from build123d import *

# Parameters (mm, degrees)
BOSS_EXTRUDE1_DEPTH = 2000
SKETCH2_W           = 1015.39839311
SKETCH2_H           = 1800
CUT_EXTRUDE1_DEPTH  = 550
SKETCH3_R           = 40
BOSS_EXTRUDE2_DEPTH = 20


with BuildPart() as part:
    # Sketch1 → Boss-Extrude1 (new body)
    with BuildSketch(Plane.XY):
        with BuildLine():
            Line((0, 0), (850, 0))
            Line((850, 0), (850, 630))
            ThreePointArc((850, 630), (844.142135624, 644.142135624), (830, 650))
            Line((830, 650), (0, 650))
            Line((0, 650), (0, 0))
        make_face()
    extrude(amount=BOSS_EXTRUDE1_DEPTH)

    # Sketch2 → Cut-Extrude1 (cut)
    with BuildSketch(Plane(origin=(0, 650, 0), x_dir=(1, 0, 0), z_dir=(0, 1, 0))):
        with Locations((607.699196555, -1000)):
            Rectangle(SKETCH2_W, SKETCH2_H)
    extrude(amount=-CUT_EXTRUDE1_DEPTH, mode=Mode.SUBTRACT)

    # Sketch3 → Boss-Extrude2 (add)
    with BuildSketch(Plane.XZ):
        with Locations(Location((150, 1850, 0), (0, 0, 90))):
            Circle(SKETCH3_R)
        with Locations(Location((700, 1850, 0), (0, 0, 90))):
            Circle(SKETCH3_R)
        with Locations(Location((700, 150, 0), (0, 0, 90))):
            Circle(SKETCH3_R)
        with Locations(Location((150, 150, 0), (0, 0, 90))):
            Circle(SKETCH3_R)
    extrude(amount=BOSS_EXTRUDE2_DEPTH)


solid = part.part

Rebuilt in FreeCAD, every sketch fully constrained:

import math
import FreeCAD as App
import Part
import Sketcher
Q = App.Units.Quantity


def add_polygon(sketch, points):
    """Adds a closed chain of lines whose ends are joined by coincident constraints."""
    first, n = sketch.GeometryCount, len(points)
    for a, b in zip(points, points[1:] + points[:1]):
        sketch.addGeometry(Part.LineSegment(App.Vector(*a, 0), App.Vector(*b, 0)), False)
    for i in range(n):
        sketch.addConstraint(Sketcher.Constraint("Coincident", first + i, 2, first + (i + 1) % n, 1))

doc = App.newDocument("Part")
params = doc.addObject("Spreadsheet::Sheet", "Params")
for row, (alias, value) in enumerate([
    ("sketch1_radius", "20 mm"),
    ("sketch1_width", "850 mm"),
    ("sketch1_height", "630 mm"),
    ("pad1_length", "2000 mm"),
    ("sketch2_height", "1800 mm"),
    ("pocket1_length", "550 mm"),
    ("sketch3_diameter", "80 mm"),
    ("pad2_length", "20 mm"),
], start=1):
    params.set(f"A{row}", alias)
    params.set(f"B{row}", "=" + value)
    params.setAlias(f"B{row}", alias)

body = doc.addObject("PartDesign::Body", "Body")

# Sketch on XY plane
sketch1 = doc.addObject("Sketcher::SketchObject", "Sketch")
body.addObject(sketch1)
sketch1.AttachmentSupport = (doc.XY_Plane, [""])
sketch1.MapMode = "FlatFace"
sketch1.addGeometry(Part.LineSegment(App.Vector(0, 0, 0), App.Vector(850, 0, 0)), False)
sketch1.addGeometry(Part.LineSegment(App.Vector(850, 0, 0), App.Vector(850, 630, 0)), False)
sketch1.addGeometry(Part.ArcOfCircle(Part.Circle(App.Vector(830, 630, 0), App.Vector(0, 0, 1), 20), math.radians(0), math.radians(90)), False)
sketch1.addGeometry(Part.LineSegment(App.Vector(830, 650, 0), App.Vector(0, 650, 0)), False)
sketch1.addGeometry(Part.LineSegment(App.Vector(0, 650, 0), App.Vector(0, 0, 0)), False)
sketch1.addConstraint(Sketcher.Constraint("Coincident", 0, 2, 1, 1))
sketch1.addConstraint(Sketcher.Constraint("Tangent", 1, 2, 2, 1))
sketch1.addConstraint(Sketcher.Constraint("Tangent", 2, 2, 3, 1))
sketch1.addConstraint(Sketcher.Constraint("Coincident", 3, 2, 4, 1))
sketch1.addConstraint(Sketcher.Constraint("Coincident", 4, 2, 0, 1))
sketch1.addConstraint(Sketcher.Constraint("Horizontal", 0))
sketch1.addConstraint(Sketcher.Constraint("Vertical", 1))
sketch1.addConstraint(Sketcher.Constraint("Horizontal", 3))
sketch1.addConstraint(Sketcher.Constraint("Vertical", 4))
sketch1.addConstraint(Sketcher.Constraint("Coincident", 4, 2, -1, 1))
sketch1.addConstraint(Sketcher.Constraint("Radius", 2, Q("20 mm")))
sketch1.addConstraint(Sketcher.Constraint("DistanceX", 0, 1, 0, 2, Q("850 mm")))
sketch1.addConstraint(Sketcher.Constraint("DistanceY", 1, 1, 1, 2, Q("630 mm")))
sketch1.setExpression("Constraints[10]", "Params.sketch1_radius")
sketch1.setExpression("Constraints[11]", "Params.sketch1_width")
sketch1.setExpression("Constraints[12]", "Params.sketch1_height")
pad1 = doc.addObject("PartDesign::Pad", "Pad")
body.addObject(pad1)
pad1.Profile = sketch1
pad1.setExpression("Length", "Params.pad1_length")

# Sketch on XZ plane
sketch2 = doc.addObject("Sketcher::SketchObject", "Sketch001")
body.addObject(sketch2)
sketch2.AttachmentSupport = (doc.XZ_Plane, [""])
sketch2.MapMode = "FlatFace"
sketch2.AttachmentOffset = App.Placement(App.Vector(0, 0, -650), App.Rotation())
add_polygon(sketch2, [(100, 100), (100, 1900), (1115, 1900), (1115, 100)])  # lines 0-3
sketch2.addConstraint(Sketcher.Constraint("Vertical", 0))
sketch2.addConstraint(Sketcher.Constraint("Horizontal", 1))
sketch2.addConstraint(Sketcher.Constraint("Vertical", 2))
sketch2.addConstraint(Sketcher.Constraint("Horizontal", 3))
sketch2.addConstraint(Sketcher.Constraint("DistanceY", 0, 1, 0, 2, Q("1800 mm")))
sketch2.addConstraint(Sketcher.Constraint("DistanceX", -1, 1, 0, 2, Q("100 mm")))
sketch2.addConstraint(Sketcher.Constraint("DistanceY", -1, 1, 0, 2, Q("1900 mm")))
sketch2.addConstraint(Sketcher.Constraint("DistanceX", 1, 1, 1, 2, Q("1015.398393 mm")))
sketch2.setExpression("Constraints[8]", "Params.sketch2_height")
pocket1 = doc.addObject("PartDesign::Pocket", "Pocket")
body.addObject(pocket1)
pocket1.Profile = sketch2
pocket1.setExpression("Length", "Params.pocket1_length")
pocket1.Reversed = True

# Sketch on XZ plane
sketch3 = doc.addObject("Sketcher::SketchObject", "Sketch002")
body.addObject(sketch3)
sketch3.AttachmentSupport = (doc.XZ_Plane, [""])
sketch3.MapMode = "FlatFace"
sketch3.addGeometry(Part.Circle(App.Vector(150, 1850, 0), App.Vector(0, 0, 1), 40), False)
sketch3.addGeometry(Part.Circle(App.Vector(700, 1850, 0), App.Vector(0, 0, 1), 40), False)
sketch3.addGeometry(Part.Circle(App.Vector(700, 150, 0), App.Vector(0, 0, 1), 40), False)
sketch3.addGeometry(Part.Circle(App.Vector(150, 150, 0), App.Vector(0, 0, 1), 40), False)
sketch3.addConstraint(Sketcher.Constraint("Equal", 0, 1))
sketch3.addConstraint(Sketcher.Constraint("Equal", 1, 2))
sketch3.addConstraint(Sketcher.Constraint("Equal", 2, 3))
sketch3.addConstraint(Sketcher.Constraint("Horizontal", 0, 3, 1, 3))
sketch3.addConstraint(Sketcher.Constraint("Horizontal", 2, 3, 3, 3))
sketch3.addConstraint(Sketcher.Constraint("Vertical", 1, 3, 2, 3))
sketch3.addConstraint(Sketcher.Constraint("Vertical", 0, 3, 3, 3))
sketch3.addConstraint(Sketcher.Constraint("Diameter", 0, Q("80 mm")))
sketch3.addConstraint(Sketcher.Constraint("DistanceX", -1, 1, 0, 3, Q("150 mm")))
sketch3.addConstraint(Sketcher.Constraint("DistanceY", -1, 1, 0, 3, Q("1850 mm")))
sketch3.addConstraint(Sketcher.Constraint("DistanceX", -1, 1, 1, 3, Q("700 mm")))
sketch3.addConstraint(Sketcher.Constraint("DistanceY", -1, 1, 2, 3, Q("150 mm")))
sketch3.setExpression("Constraints[7]", "Params.sketch3_diameter")
pad2 = doc.addObject("PartDesign::Pad", "Pad001")
body.addObject(pad2)
pad2.Profile = sketch3
pad2.setExpression("Length", "Params.pad2_length")

doc.recompute()
